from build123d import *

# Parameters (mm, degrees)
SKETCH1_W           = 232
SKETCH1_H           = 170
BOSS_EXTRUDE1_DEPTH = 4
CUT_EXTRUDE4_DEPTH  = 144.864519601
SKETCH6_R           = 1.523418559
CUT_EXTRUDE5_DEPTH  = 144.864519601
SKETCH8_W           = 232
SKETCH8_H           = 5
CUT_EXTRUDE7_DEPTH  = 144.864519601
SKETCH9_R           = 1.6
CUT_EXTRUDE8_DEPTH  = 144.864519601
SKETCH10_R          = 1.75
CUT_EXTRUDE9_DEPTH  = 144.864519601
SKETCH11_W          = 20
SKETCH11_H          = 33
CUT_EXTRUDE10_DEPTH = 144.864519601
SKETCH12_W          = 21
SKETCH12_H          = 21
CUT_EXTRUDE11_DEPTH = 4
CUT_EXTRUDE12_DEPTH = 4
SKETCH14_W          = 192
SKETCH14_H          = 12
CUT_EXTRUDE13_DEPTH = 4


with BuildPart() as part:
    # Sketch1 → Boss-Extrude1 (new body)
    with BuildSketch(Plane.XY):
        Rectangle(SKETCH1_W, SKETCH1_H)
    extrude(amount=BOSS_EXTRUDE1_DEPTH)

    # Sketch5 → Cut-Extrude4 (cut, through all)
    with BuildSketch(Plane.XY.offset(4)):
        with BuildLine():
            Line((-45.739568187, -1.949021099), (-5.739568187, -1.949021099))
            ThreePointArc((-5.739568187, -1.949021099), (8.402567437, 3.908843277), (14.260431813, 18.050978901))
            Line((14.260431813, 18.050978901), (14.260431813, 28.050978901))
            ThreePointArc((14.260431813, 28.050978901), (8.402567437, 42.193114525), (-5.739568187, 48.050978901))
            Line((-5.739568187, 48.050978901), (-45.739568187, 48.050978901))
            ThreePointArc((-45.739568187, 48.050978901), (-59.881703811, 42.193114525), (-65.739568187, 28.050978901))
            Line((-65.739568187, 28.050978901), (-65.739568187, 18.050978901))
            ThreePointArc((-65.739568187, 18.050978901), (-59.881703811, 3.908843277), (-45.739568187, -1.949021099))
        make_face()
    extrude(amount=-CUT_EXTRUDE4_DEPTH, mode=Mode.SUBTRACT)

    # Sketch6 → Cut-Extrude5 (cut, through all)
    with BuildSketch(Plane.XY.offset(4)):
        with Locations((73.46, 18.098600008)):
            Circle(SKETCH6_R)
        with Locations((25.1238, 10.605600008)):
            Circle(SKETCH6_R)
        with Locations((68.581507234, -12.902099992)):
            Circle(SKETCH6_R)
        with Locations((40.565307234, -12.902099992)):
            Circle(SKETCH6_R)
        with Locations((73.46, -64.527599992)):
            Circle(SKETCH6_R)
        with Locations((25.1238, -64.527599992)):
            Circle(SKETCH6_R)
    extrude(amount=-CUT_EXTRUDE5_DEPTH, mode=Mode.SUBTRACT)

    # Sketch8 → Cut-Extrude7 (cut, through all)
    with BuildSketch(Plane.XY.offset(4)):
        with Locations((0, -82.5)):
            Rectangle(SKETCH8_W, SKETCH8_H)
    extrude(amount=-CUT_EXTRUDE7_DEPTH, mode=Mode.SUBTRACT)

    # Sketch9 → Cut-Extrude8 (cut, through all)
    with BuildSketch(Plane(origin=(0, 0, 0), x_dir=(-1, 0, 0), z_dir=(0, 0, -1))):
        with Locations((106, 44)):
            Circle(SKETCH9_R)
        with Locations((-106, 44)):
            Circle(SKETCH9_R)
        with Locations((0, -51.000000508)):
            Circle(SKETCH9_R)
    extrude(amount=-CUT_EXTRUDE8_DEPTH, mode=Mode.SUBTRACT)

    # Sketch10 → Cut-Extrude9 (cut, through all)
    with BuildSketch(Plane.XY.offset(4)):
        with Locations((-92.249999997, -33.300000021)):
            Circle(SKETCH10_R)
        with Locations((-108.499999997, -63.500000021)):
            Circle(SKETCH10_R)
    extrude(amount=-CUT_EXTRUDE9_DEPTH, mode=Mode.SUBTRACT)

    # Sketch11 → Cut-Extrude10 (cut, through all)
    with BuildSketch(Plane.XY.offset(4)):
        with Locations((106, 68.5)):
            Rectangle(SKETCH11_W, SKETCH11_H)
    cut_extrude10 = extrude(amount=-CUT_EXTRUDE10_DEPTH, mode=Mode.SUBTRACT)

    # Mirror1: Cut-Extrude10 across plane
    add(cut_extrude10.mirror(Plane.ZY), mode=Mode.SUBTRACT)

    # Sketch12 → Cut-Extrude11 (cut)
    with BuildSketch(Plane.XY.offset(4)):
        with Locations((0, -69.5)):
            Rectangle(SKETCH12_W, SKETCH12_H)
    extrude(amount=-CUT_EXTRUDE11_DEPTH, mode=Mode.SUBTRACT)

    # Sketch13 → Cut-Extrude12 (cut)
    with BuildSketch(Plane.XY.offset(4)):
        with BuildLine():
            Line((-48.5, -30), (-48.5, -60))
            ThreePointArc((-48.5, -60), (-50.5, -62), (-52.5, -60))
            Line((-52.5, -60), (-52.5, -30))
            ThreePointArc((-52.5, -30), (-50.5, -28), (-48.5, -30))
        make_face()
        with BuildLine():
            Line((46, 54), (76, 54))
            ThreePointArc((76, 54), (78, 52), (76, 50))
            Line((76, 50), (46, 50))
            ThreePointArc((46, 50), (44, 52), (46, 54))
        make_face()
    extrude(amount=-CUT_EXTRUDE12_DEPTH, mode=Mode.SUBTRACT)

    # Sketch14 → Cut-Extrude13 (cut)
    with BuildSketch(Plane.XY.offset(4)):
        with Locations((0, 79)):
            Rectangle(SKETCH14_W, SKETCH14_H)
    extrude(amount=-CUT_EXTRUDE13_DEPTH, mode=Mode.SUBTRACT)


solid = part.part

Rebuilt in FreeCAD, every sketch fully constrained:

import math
import FreeCAD as App
import Part
import Sketcher

V = App.Vector

doc = App.newDocument("Part")
body = doc.addObject("PartDesign::Body", "Body")

# Sketch on XY plane
sketch1 = doc.addObject("Sketcher::SketchObject", "Sketch")
body.addObject(sketch1)
sketch1.AttachmentSupport = (doc.XY_Plane, [""])
sketch1.MapMode = "FlatFace"
sketch1.addGeometry(Part.LineSegment(V(-116, 85, 0), V(-116, -85, 0)), False)
sketch1.addGeometry(Part.LineSegment(V(-116, -85, 0), V(116, -85, 0)), False)
sketch1.addGeometry(Part.LineSegment(V(116, -85, 0), V(116, 85, 0)), False)
sketch1.addGeometry(Part.LineSegment(V(116, 85, 0), V(-116, 85, 0)), False)
sketch1.addConstraint(Sketcher.Constraint("Coincident", 0, 2, 1, 1))
sketch1.addConstraint(Sketcher.Constraint("Coincident", 1, 2, 2, 1))
sketch1.addConstraint(Sketcher.Constraint("Coincident", 2, 2, 3, 1))
sketch1.addConstraint(Sketcher.Constraint("Coincident", 3, 2, 0, 1))
sketch1.addConstraint(Sketcher.Constraint("Vertical", 0))
sketch1.addConstraint(Sketcher.Constraint("Horizontal", 1))
sketch1.addConstraint(Sketcher.Constraint("Vertical", 2))
sketch1.addConstraint(Sketcher.Constraint("Horizontal", 3))
sketch1.addConstraint(Sketcher.Constraint("Symmetric", 0, 2, 2, 2, -1, 1))
sketch1.addConstraint(Sketcher.Constraint("DistanceX", 1, 1, 1, 2, 232.0))
sketch1.addConstraint(Sketcher.Constraint("DistanceY", 0, 2, 0, 1, 170.0))
pad1 = doc.addObject("PartDesign::Pad", "Pad")
body.addObject(pad1)
pad1.Profile = sketch1
pad1.Length = 4

# Sketch on XY plane
sketch2 = doc.addObject("Sketcher::SketchObject", "Sketch001")
body.addObject(sketch2)
sketch2.AttachmentSupport = (doc.XY_Plane, [""])
sketch2.MapMode = "FlatFace"
sketch2.AttachmentOffset = App.Placement(V(0, 0, 4), App.Rotation())
sketch2.addGeometry(Part.LineSegment(V(-46, -2, 0), V(-6, -2, 0)), False)
sketch2.addGeometry(Part.ArcOfCircle(Part.Circle(V(-6, 18, 0), V(0, 0, 1), 20), math.radians(-90), math.radians(0)), False)
sketch2.addGeometry(Part.LineSegment(V(14, 18, 0), V(14, 28, 0)), False)
sketch2.addGeometry(Part.ArcOfCircle(Part.Circle(V(-6, 28, 0), V(0, 0, 1), 20), math.radians(0), math.radians(90)), False)
sketch2.addGeometry(Part.LineSegment(V(-6, 48, 0), V(-46, 48, 0)), False)
sketch2.addGeometry(Part.ArcOfCircle(Part.Circle(V(-46, 28, 0), V(0, 0, 1), 20), math.radians(90), math.radians(180)), False)
sketch2.addGeometry(Part.LineSegment(V(-66, 28, 0), V(-66, 18, 0)), False)
sketch2.addGeometry(Part.ArcOfCircle(Part.Circle(V(-46, 18, 0), V(0, 0, 1), 20), math.radians(180), math.radians(270)), False)
sketch2.addConstraint(Sketcher.Constraint("Tangent", 0, 2, 1, 1))
sketch2.addConstraint(Sketcher.Constraint("Tangent", 1, 2, 2, 1))
sketch2.addConstraint(Sketcher.Constraint("Tangent", 2, 2, 3, 1))
sketch2.addConstraint(Sketcher.Constraint("Tangent", 3, 2, 4, 1))
sketch2.addConstraint(Sketcher.Constraint("Tangent", 4, 2, 5, 1))
sketch2.addConstraint(Sketcher.Constraint("Tangent", 5, 2, 6, 1))
sketch2.addConstraint(Sketcher.Constraint("Tangent", 6, 2, 7, 1))
sketch2.addConstraint(Sketcher.Constraint("Tangent", 7, 2, 0, 1))
sketch2.addConstraint(Sketcher.Constraint("Horizontal", 0))
sketch2.addConstraint(Sketcher.Constraint("Vertical", 2))
sketch2.addConstraint(Sketcher.Constraint("Horizontal", 4))
sketch2.addConstraint(Sketcher.Constraint("Vertical", 6))
sketch2.addConstraint(Sketcher.Constraint("Equal", 1, 3))
sketch2.addConstraint(Sketcher.Constraint("Equal", 3, 5))
sketch2.addConstraint(Sketcher.Constraint("Equal", 5, 7))
sketch2.addConstraint(Sketcher.Constraint("Radius", 1, 20.0))
sketch2.addConstraint(Sketcher.Constraint("DistanceX", 0, 1, 0, 2, 40.0))
sketch2.addConstraint(Sketcher.Constraint("DistanceY", 2, 1, 2, 2, 10.0))
sketch2.addConstraint(Sketcher.Constraint("DistanceX", 1, 3, -1, 1, 5.739568))
sketch2.addConstraint(Sketcher.Constraint("DistanceY", -1, 1, 1, 3, 18.050979))
pocket1 = doc.addObject("PartDesign::Pocket", "Pocket")
body.addObject(pocket1)
pocket1.Profile = sketch2
pocket1.Type = "ThroughAll"

# Sketch on XY plane
sketch3 = doc.addObject("Sketcher::SketchObject", "Sketch002")
body.addObject(sketch3)
sketch3.AttachmentSupport = (doc.XY_Plane, [""])
sketch3.MapMode = "FlatFace"
sketch3.AttachmentOffset = App.Placement(V(0, 0, 4), App.Rotation())
sketch3.addGeometry(Part.Circle(V(73.5, 18.1, 0), V(0, 0, 1), 1.5), False)
sketch3.addGeometry(Part.Circle(V(25.1, 10.6, 0), V(0, 0, 1), 1.5), False)
sketch3.addGeometry(Part.Circle(V(68.6, -12.9, 0), V(0, 0, 1), 1.5), False)
sketch3.addGeometry(Part.Circle(V(40.6, -12.9, 0), V(0, 0, 1), 1.5), False)
sketch3.addGeometry(Part.Circle(V(73.5, -64.5, 0), V(0, 0, 1), 1.5), False)
sketch3.addGeometry(Part.Circle(V(25.1, -64.5, 0), V(0, 0, 1), 1.5), False)
sketch3.addConstraint(Sketcher.Constraint("Equal", 0, 1))
sketch3.addConstraint(Sketcher.Constraint("Equal", 1, 2))
sketch3.addConstraint(Sketcher.Constraint("Equal", 2, 3))
sketch3.addConstraint(Sketcher.Constraint("Equal", 3, 4))
sketch3.addConstraint(Sketcher.Constraint("Equal", 4, 5))
sketch3.addConstraint(Sketcher.Constraint("Horizontal", 2, 3, 3, 3))
sketch3.addConstraint(Sketcher.Constraint("Horizontal", 4, 3, 5, 3))
sketch3.addConstraint(Sketcher.Constraint("Vertical", 0, 3, 4, 3))
sketch3.addConstraint(Sketcher.Constraint("Vertical", 1, 3, 5, 3))
sketch3.addConstraint(Sketcher.Constraint("DistanceX", -1, 1, 0, 3, 73.46))
sketch3.addConstraint(Sketcher.Constraint("Diameter", 0, 3.046837))
sketch3.addConstraint(Sketcher.Constraint("DistanceY", 1, 3, 0, 3, 7.493))
sketch3.addConstraint(Sketcher.Constraint("DistanceY", -1, 1, 0, 3, 18.0986))
sketch3.addConstraint(Sketcher.Constraint("DistanceX", -1, 1, 1, 3, 25.1238))
sketch3.addConstraint(Sketcher.Constraint("DistanceY", 2, 3, -1, 1, 12.9021))
sketch3.addConstraint(Sketcher.Constraint("DistanceY", 4, 3, -1, 1, 64.5276))
sketch3.addConstraint(Sketcher.Constraint("DistanceX", 3, 3, 2, 3, 28.0162))
sketch3.addConstraint(Sketcher.Constraint("DistanceX", -1, 1, 2, 3, 68.581507))
pocket2 = doc.addObject("PartDesign::Pocket", "Pocket001")
body.addObject(pocket2)
pocket2.Profile = sketch3
pocket2.Type = "ThroughAll"

# Sketch on XY plane
sketch4 = doc.addObject("Sketcher::SketchObject", "Sketch003")
body.addObject(sketch4)
sketch4.AttachmentSupport = (doc.XY_Plane, [""])
sketch4.MapMode = "FlatFace"
sketch4.AttachmentOffset = App.Placement(V(0, 0, 4), App.Rotation())
sketch4.addGeometry(Part.LineSegment(V(-116, -80, 0), V(-116, -85, 0)), False)
sketch4.addGeometry(Part.LineSegment(V(-116, -85, 0), V(116, -85, 0)), False)
sketch4.addGeometry(Part.LineSegment(V(116, -85, 0), V(116, -80, 0)), False)
sketch4.addGeometry(Part.LineSegment(V(116, -80, 0), V(-116, -80, 0)), False)
sketch4.addConstraint(Sketcher.Constraint("Coincident", 0, 2, 1, 1))
sketch4.addConstraint(Sketcher.Constraint("Coincident", 1, 2, 2, 1))
sketch4.addConstraint(Sketcher.Constraint("Coincident", 2, 2, 3, 1))
sketch4.addConstraint(Sketcher.Constraint("Coincident", 3, 2, 0, 1))
sketch4.addConstraint(Sketcher.Constraint("Vertical", 0))
sketch4.addConstraint(Sketcher.Constraint("Horizontal", 1))
sketch4.addConstraint(Sketcher.Constraint("Vertical", 2))
sketch4.addConstraint(Sketcher.Constraint("Horizontal", 3))
sketch4.addConstraint(Sketcher.Constraint("DistanceX", 1, 1, 1, 2, 232.0))
sketch4.addConstraint(Sketcher.Constraint("DistanceY", 0, 2, 0, 1, 5.0))
sketch4.addConstraint(Sketcher.Constraint("DistanceX", 0, 2, -1, 1, 116.0))
sketch4.addConstraint(Sketcher.Constraint("DistanceY", 0, 2, -1, 1, 85.0))
pocket3 = doc.addObject("PartDesign::Pocket", "Pocket002")
body.addObject(pocket3)
pocket3.Profile = sketch4
pocket3.Type = "ThroughAll"

# Sketch on XY plane
sketch5 = doc.addObject("Sketcher::SketchObject", "Sketch004")
body.addObject(sketch5)
sketch5.AttachmentSupport = (doc.XY_Plane, [""])
sketch5.MapMode = "FlatFace"
sketch5.addGeometry(Part.Circle(V(-106, 44, 0), V(0, 0, 1), 1.6), False)
sketch5.addGeometry(Part.Circle(V(106, 44, 0), V(0, 0, 1), 1.6), False)
sketch5.addGeometry(Part.Circle(V(0, -51, 0), V(0, 0, 1), 1.6), False)
sketch5.addConstraint(Sketcher.Constraint("Equal", 0, 1))
sketch5.addConstraint(Sketcher.Constraint("Equal", 1, 2))
sketch5.addConstraint(Sketcher.Constraint("Symmetric", 0, 3, 1, 3, -2))
sketch5.addConstraint(Sketcher.Constraint("PointOnObject", 2, 3, -2))
sketch5.addConstraint(Sketcher.Constraint("Diameter", 0, 3.2))
sketch5.addConstraint(Sketcher.Constraint("DistanceX", 0, 3, -1, 1, 106.0))
sketch5.addConstraint(Sketcher.Constraint("DistanceY", -1, 1, 0, 3, 44.0))
sketch5.addConstraint(Sketcher.Constraint("DistanceY", 2, 3, -1, 1, 51.000001))
pocket4 = doc.addObject("PartDesign::Pocket", "Pocket003")
body.addObject(pocket4)
pocket4.Profile = sketch5
pocket4.Type = "ThroughAll"
pocket4.Reversed = True

# Sketch on XY plane
sketch6 = doc.addObject("Sketcher::SketchObject", "Sketch005")
body.addObject(sketch6)
sketch6.AttachmentSupport = (doc.XY_Plane, [""])
sketch6.MapMode = "FlatFace"
sketch6.AttachmentOffset = App.Placement(V(0, 0, 4), App.Rotation())
sketch6.addGeometry(Part.Circle(V(-92.2, -33.3, 0), V(0, 0, 1), 1.8), False)
sketch6.addGeometry(Part.Circle(V(-108.5, -63.5, 0), V(0, 0, 1), 1.8), False)
sketch6.addConstraint(Sketcher.Constraint("Equal", 0, 1))
sketch6.addConstraint(Sketcher.Constraint("Diameter", 0, 3.5))
sketch6.addConstraint(Sketcher.Constraint("DistanceY", 0, 3, -1, 1, 33.3))
sketch6.addConstraint(Sketcher.Constraint("DistanceX", 1, 3, -1, 1, 108.5))
sketch6.addConstraint(Sketcher.Constraint("DistanceY", 1, 3, -1, 1, 63.5))
sketch6.addConstraint(Sketcher.Constraint("DistanceX", 0, 3, -1, 1, 92.25))
pocket5 = doc.addObject("PartDesign::Pocket", "Pocket004")
body.addObject(pocket5)
pocket5.Profile = sketch6
pocket5.Type = "ThroughAll"

# Sketch on XY plane
sketch7 = doc.addObject("Sketcher::SketchObject", "Sketch006")
body.addObject(sketch7)
sketch7.AttachmentSupport = (doc.XY_Plane, [""])
sketch7.MapMode = "FlatFace"
sketch7.AttachmentOffset = App.Placement(V(0, 0, 4), App.Rotation())
sketch7.addGeometry(Part.LineSegment(V(96, 85, 0), V(96, 52, 0)), False)
sketch7.addGeometry(Part.LineSegment(V(96, 52, 0), V(116, 52, 0)), False)
sketch7.addGeometry(Part.LineSegment(V(116, 52, 0), V(116, 85, 0)), False)
sketch7.addGeometry(Part.LineSegment(V(116, 85, 0), V(96, 85, 0)), False)
sketch7.addConstraint(Sketcher.Constraint("Coincident", 0, 2, 1, 1))
sketch7.addConstraint(Sketcher.Constraint("Coincident", 1, 2, 2, 1))
sketch7.addConstraint(Sketcher.Constraint("Coincident", 2, 2, 3, 1))
sketch7.addConstraint(Sketcher.Constraint("Coincident", 3, 2, 0, 1))
sketch7.addConstraint(Sketcher.Constraint("Vertical", 0))
sketch7.addConstraint(Sketcher.Constraint("Horizontal", 1))
sketch7.addConstraint(Sketcher.Constraint("Vertical", 2))
sketch7.addConstraint(Sketcher.Constraint("Horizontal", 3))
sketch7.addConstraint(Sketcher.Constraint("DistanceX", 1, 1, 1, 2, 20.0))
sketch7.addConstraint(Sketcher.Constraint("DistanceY", 0, 2, 0, 1, 33.0))
sketch7.addConstraint(Sketcher.Constraint("DistanceX", -1, 1, 0, 2, 96.0))
sketch7.addConstraint(Sketcher.Constraint("DistanceY", -1, 1, 0, 2, 52.0))
pocket6 = doc.addObject("PartDesign::Pocket", "Pocket005")
body.addObject(pocket6)
pocket6.Profile = sketch7
pocket6.Type = "ThroughAll"
doc.recompute()

mirrored = doc.addObject("PartDesign::Mirrored", "Mirrored")
body.addObject(mirrored)
mirrored.Originals = [pocket6]
mirrored.MirrorPlane = (doc.YZ_Plane, [""])
body.Tip = mirrored

# Sketch on XY plane
sketch8 = doc.addObject("Sketcher::SketchObject", "Sketch007")
body.addObject(sketch8)
sketch8.AttachmentSupport = (doc.XY_Plane, [""])
sketch8.MapMode = "FlatFace"
sketch8.AttachmentOffset = App.Placement(V(0, 0, 4), App.Rotation())
sketch8.addGeometry(Part.LineSegment(V(-10, -59, 0), V(-10, -80, 0)), False)
sketch8.addGeometry(Part.LineSegment(V(-10, -80, 0), V(10, -80, 0)), False)
sketch8.addGeometry(Part.LineSegment(V(10, -80, 0), V(10, -59, 0)), False)
sketch8.addGeometry(Part.LineSegment(V(10, -59, 0), V(-10, -59, 0)), False)
sketch8.addConstraint(Sketcher.Constraint("Coincident", 0, 2, 1, 1))
sketch8.addConstraint(Sketcher.Constraint("Coincident", 1, 2, 2, 1))
sketch8.addConstraint(Sketcher.Constraint("Coincident", 2, 2, 3, 1))
sketch8.addConstraint(Sketcher.Constraint("Coincident", 3, 2, 0, 1))
sketch8.addConstraint(Sketcher.Constraint("Vertical", 0))
sketch8.addConstraint(Sketcher.Constraint("Horizontal", 1))
sketch8.addConstraint(Sketcher.Constraint("Vertical", 2))
sketch8.addConstraint(Sketcher.Constraint("Horizontal", 3))
sketch8.addConstraint(Sketcher.Constraint("Equal", 3, 0))
sketch8.addConstraint(Sketcher.Constraint("DistanceX", 1, 1, 1, 2, 21.0))
sketch8.addConstraint(Sketcher.Constraint("DistanceY", 0, 2, -1, 1, 80.0))
sketch8.addConstraint(Sketcher.Constraint("DistanceX", 0, 2, -1, 1, 10.5))
pocket7 = doc.addObject("PartDesign::Pocket", "Pocket006")
body.addObject(pocket7)
pocket7.Profile = sketch8
pocket7.Length = 4

# Sketch on XY plane
sketch9 = doc.addObject("Sketcher::SketchObject", "Sketch008")
body.addObject(sketch9)
sketch9.AttachmentSupport = (doc.XY_Plane, [""])
sketch9.MapMode = "FlatFace"
sketch9.AttachmentOffset = App.Placement(V(0, 0, 4), App.Rotation())
sketch9.addGeometry(Part.LineSegment(V(-48.5, -60, 0), V(-48.5, -30, 0)), False)
sketch9.addGeometry(Part.ArcOfCircle(Part.Circle(V(-50.5, -30, 0), V(0, 0, 1), 2), math.radians(0), math.radians(180)), False)
sketch9.addGeometry(Part.LineSegment(V(-52.5, -30, 0), V(-52.5, -60, 0)), False)
sketch9.addGeometry(Part.ArcOfCircle(Part.Circle(V(-50.5, -60, 0), V(0, 0, 1), 2), math.radians(180), math.radians(360)), False)
sketch9.addGeometry(Part.LineSegment(V(76, 54, 0), V(46, 54, 0)), False)
sketch9.addGeometry(Part.ArcOfCircle(Part.Circle(V(46, 52, 0), V(0, 0, 1), 2), math.radians(90), math.radians(270)), False)
sketch9.addGeometry(Part.LineSegment(V(46, 50, 0), V(76, 50, 0)), False)
sketch9.addGeometry(Part.ArcOfCircle(Part.Circle(V(76, 52, 0), V(0, 0, 1), 2), math.radians(-90), math.radians(90)), False)
sketch9.addConstraint(Sketcher.Constraint("Tangent", 0, 2, 1, 1))
sketch9.addConstraint(Sketcher.Constraint("Tangent", 1, 2, 2, 1))
sketch9.addConstraint(Sketcher.Constraint("Tangent", 2, 2, 3, 1))
sketch9.addConstraint(Sketcher.Constraint("Tangent", 3, 2, 0, 1))
sketch9.addConstraint(Sketcher.Constraint("Tangent", 4, 2, 5, 1))
sketch9.addConstraint(Sketcher.Constraint("Tangent", 5, 2, 6, 1))
sketch9.addConstraint(Sketcher.Constraint("Tangent", 6, 2, 7, 1))
sketch9.addConstraint(Sketcher.Constraint("Tangent", 7, 2, 4, 1))
sketch9.addConstraint(Sketcher.Constraint("Vertical", 0))
sketch9.addConstraint(Sketcher.Constraint("Vertical", 2))
sketch9.addConstraint(Sketcher.Constraint("Horizontal", 4))
sketch9.addConstraint(Sketcher.Constraint("Horizontal", 6))
sketch9.addConstraint(Sketcher.Constraint("Equal", 3, 5))
sketch9.addConstraint(Sketcher.Constraint("Equal", 6, 0))
sketch9.addConstraint(Sketcher.Constraint("Radius", 1, 2.0))
sketch9.addConstraint(Sketcher.Constraint("DistanceX", 4, 2, 4, 1, 30.0))
sketch9.addConstraint(Sketcher.Constraint("DistanceY", 1, 3, -1, 1, 30.0))
sketch9.addConstraint(Sketcher.Constraint("DistanceX", -1, 1, 5, 3, 46.0))
sketch9.addConstraint(Sketcher.Constraint("DistanceY", -1, 1, 5, 3, 52.0))
sketch9.addConstraint(Sketcher.Constraint("DistanceX", 1, 3, -1, 1, 50.5))
pocket8 = doc.addObject("PartDesign::Pocket", "Pocket007")
body.addObject(pocket8)
pocket8.Profile = sketch9
pocket8.Length = 4

# Sketch on XY plane
sketch10 = doc.addObject("Sketcher::SketchObject", "Sketch009")
body.addObject(sketch10)
sketch10.AttachmentSupport = (doc.XY_Plane, [""])
sketch10.MapMode = "FlatFace"
sketch10.AttachmentOffset = App.Placement(V(0, 0, 4), App.Rotation())
sketch10.addGeometry(Part.LineSegment(V(-96, 85, 0), V(-96, 73, 0)), False)
sketch10.addGeometry(Part.LineSegment(V(-96, 73, 0), V(96, 73, 0)), False)
sketch10.addGeometry(Part.LineSegment(V(96, 73, 0), V(96, 85, 0)), False)
sketch10.addGeometry(Part.LineSegment(V(96, 85, 0), V(-96, 85, 0)), False)
sketch10.addConstraint(Sketcher.Constraint("Coincident", 0, 2, 1, 1))
sketch10.addConstraint(Sketcher.Constraint("Coincident", 1, 2, 2, 1))
sketch10.addConstraint(Sketcher.Constraint("Coincident", 2, 2, 3, 1))
sketch10.addConstraint(Sketcher.Constraint("Coincident", 3, 2, 0, 1))
sketch10.addConstraint(Sketcher.Constraint("Vertical", 0))
sketch10.addConstraint(Sketcher.Constraint("Horizontal", 1))
sketch10.addConstraint(Sketcher.Constraint("Vertical", 2))
sketch10.addConstraint(Sketcher.Constraint("Horizontal", 3))
sketch10.addConstraint(Sketcher.Constraint("DistanceX", 1, 1, 1, 2, 192.0))
sketch10.addConstraint(Sketcher.Constraint("DistanceY", 0, 2, 0, 1, 12.0))
sketch10.addConstraint(Sketcher.Constraint("DistanceX", 0, 2, -1, 1, 96.0))
sketch10.addConstraint(Sketcher.Constraint("DistanceY", -1, 1, 0, 2, 73.0))
pocket9 = doc.addObject("PartDesign::Pocket", "Pocket008")
body.addObject(pocket9)
pocket9.Profile = sketch10
pocket9.Length = 4

doc.recompute()
